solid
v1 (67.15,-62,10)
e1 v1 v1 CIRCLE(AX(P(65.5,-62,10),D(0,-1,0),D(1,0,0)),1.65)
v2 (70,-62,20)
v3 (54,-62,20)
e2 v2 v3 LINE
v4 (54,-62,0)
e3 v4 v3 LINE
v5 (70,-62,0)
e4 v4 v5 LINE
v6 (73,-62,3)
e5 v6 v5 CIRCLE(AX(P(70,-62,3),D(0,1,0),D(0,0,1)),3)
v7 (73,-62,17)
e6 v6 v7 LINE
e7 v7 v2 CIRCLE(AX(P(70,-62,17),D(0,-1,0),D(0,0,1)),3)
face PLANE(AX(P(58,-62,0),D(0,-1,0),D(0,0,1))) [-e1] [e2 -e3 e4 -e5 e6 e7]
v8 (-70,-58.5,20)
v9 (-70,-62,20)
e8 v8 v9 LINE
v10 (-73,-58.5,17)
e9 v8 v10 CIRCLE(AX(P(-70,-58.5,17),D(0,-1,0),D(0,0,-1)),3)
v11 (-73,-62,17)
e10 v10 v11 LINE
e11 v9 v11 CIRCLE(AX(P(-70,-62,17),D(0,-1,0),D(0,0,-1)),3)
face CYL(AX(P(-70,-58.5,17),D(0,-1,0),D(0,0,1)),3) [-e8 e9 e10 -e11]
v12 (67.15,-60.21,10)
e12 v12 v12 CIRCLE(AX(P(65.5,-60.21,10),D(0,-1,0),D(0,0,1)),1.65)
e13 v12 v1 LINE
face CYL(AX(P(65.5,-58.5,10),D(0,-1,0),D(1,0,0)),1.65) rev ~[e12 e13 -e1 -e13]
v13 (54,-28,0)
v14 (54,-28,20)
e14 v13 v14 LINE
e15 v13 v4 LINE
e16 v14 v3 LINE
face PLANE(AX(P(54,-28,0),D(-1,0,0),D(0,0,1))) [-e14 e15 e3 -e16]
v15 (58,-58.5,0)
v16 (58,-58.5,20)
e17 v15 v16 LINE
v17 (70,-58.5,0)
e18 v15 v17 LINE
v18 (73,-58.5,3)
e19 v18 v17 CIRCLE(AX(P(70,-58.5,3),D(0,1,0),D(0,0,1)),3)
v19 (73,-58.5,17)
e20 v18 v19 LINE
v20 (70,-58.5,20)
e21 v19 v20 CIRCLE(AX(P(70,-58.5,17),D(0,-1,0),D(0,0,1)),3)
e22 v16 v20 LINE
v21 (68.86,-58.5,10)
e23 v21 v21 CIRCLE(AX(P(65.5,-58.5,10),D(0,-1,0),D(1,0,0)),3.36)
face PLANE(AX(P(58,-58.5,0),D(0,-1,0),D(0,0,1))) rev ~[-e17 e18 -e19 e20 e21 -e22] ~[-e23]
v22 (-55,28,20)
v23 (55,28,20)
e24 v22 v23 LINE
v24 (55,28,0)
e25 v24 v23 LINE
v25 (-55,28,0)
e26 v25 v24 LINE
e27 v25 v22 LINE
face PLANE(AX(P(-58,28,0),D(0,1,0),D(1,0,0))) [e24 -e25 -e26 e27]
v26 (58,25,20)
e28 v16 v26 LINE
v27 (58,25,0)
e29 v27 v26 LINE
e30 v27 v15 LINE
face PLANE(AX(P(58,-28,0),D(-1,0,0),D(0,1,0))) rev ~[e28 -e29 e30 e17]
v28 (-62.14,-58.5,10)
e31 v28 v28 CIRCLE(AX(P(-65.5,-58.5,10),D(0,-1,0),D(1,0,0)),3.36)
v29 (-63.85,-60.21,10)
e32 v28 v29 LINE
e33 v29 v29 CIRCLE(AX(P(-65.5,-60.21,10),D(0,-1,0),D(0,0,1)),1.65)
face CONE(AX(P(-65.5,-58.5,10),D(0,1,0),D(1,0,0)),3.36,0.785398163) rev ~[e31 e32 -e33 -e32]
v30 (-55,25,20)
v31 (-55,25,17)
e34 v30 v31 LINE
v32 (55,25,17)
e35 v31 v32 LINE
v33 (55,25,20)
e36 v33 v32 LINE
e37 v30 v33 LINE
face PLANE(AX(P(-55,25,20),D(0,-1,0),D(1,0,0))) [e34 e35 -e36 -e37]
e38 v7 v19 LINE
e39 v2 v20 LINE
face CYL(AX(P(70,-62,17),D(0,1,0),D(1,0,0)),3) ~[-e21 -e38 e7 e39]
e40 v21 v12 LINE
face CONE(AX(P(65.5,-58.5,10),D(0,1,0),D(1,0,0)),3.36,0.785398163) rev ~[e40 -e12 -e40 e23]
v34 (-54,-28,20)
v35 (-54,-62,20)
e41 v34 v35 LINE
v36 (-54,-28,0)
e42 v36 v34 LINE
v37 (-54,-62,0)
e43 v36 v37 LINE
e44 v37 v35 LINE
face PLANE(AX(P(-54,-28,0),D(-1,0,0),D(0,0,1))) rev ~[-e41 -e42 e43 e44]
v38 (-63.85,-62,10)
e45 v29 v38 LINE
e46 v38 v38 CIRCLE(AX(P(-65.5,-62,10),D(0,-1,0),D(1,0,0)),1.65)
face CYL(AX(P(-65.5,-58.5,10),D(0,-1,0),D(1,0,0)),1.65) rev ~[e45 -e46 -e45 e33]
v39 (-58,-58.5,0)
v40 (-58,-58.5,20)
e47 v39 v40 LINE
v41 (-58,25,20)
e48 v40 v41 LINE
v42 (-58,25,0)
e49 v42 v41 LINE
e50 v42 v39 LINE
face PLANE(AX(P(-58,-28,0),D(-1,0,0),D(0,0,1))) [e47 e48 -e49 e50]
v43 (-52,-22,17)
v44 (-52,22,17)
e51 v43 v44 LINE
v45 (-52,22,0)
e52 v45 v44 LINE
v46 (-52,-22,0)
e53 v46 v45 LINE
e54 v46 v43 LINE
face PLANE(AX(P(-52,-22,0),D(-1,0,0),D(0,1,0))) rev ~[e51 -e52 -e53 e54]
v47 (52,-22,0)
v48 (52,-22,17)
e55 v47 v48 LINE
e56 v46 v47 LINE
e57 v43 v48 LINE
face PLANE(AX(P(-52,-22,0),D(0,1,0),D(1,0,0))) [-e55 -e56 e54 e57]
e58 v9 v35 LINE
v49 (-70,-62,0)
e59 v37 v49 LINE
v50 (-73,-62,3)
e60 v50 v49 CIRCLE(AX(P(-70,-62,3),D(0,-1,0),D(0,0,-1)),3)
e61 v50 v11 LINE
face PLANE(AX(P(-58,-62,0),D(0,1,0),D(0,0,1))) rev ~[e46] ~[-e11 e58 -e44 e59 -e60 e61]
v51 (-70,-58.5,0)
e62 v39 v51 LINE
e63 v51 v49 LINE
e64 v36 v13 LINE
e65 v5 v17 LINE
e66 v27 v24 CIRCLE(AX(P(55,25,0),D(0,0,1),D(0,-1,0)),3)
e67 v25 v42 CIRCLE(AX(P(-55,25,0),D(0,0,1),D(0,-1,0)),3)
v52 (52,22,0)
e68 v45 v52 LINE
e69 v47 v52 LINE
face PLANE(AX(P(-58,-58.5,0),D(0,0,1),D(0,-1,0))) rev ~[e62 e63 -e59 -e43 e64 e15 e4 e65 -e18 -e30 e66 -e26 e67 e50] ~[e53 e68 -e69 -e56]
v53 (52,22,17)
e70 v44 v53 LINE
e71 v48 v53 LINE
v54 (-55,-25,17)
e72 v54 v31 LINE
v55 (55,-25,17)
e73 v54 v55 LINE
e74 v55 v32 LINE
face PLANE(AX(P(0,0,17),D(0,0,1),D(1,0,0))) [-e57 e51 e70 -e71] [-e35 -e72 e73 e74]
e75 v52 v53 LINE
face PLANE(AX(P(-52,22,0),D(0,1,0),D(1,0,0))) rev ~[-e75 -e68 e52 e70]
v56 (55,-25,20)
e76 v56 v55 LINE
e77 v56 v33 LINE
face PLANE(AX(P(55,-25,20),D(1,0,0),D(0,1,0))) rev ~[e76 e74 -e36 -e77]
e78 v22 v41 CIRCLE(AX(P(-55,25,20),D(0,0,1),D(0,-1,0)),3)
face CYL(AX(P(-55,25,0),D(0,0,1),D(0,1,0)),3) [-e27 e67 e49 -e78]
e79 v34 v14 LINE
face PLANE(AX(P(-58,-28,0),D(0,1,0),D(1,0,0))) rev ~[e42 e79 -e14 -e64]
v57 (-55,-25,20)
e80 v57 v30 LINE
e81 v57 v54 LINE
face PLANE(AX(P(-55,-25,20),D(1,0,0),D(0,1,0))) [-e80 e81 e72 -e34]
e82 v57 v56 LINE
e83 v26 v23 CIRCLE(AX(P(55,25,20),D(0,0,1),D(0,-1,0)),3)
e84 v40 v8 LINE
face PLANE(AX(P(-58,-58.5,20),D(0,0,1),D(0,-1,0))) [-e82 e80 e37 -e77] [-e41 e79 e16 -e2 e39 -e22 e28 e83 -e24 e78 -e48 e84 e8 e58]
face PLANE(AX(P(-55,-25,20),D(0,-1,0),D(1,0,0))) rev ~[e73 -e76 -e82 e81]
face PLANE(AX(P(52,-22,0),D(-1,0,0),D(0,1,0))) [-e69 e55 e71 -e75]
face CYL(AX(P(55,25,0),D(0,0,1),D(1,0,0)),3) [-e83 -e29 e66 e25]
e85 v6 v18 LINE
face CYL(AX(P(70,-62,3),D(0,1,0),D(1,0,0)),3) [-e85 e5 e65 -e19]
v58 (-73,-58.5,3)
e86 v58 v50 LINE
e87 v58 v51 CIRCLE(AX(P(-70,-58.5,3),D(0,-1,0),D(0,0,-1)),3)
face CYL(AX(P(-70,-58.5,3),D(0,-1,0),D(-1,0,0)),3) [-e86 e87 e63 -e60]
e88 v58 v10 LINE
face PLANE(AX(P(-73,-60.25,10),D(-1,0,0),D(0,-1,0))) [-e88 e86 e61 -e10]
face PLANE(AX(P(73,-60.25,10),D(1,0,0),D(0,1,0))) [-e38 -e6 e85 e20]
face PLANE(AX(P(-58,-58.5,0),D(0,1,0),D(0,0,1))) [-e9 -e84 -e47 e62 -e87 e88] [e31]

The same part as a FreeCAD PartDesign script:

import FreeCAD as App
import Part
import Sketcher
from FreeCAD import Vector


def edges_at(feature, points):
    """Names of the edges that pass closest to the given points."""
    edges = feature.Shape.Edges
    near = lambda p: min(range(len(edges)), key=lambda i: edges[i].distToShape(Part.Vertex(*p))[0])
    return sorted({f"Edge{near(p) + 1}" for p in points})


def add_polygon(sketch, points):
    """Adds a closed chain of lines whose ends are joined by coincident constraints."""
    first, n = sketch.GeometryCount, len(points)
    for a, b in zip(points, points[1:] + points[:1]):
        sketch.addGeometry(Part.LineSegment(App.Vector(*a, 0), App.Vector(*b, 0)), False)
    for i in range(n):
        sketch.addConstraint(Sketcher.Constraint("Coincident", first + i, 2, first + (i + 1) % n, 1))

doc = App.newDocument("Part")
params = doc.addObject("Spreadsheet::Sheet", "Params")
for row, (alias, value) in enumerate([
    ("sketch1_width", "116 mm"),
    ("sketch1_width2", "104 mm"),
    ("sketch1_height", "56 mm"),
    ("sketch1_height2", "44 mm"),
    ("pad1_length", "20 mm"),
    ("sketch2_width", "110 mm"),
    ("sketch2_width2", "104 mm"),
    ("sketch2_height", "50 mm"),
    ("sketch2_height2", "44 mm"),
    ("pocket1_length", "3 mm"),
    ("sketch3_width", "4 mm"),
    ("sketch3_height", "20 mm"),
    ("pad2_length", "34 mm"),
    ("sketch4_height", "20 mm"),
    ("sketch4_width", "3.5 mm"),
    ("pad3_length", "15 mm"),
    ("sketch5_height", "20 mm"),
    ("sketch5_width", "3.5 mm"),
    ("pad4_length", "15 mm"),
    ("sketch6_diameter", "3.3 mm"),
    ("hole_diameter", "3.3 mm"),
    ("hole_depth", "5 mm"),
    ("hole_csink_diameter", "6.72 mm"),
    ("sketch7_diameter", "3.3 mm"),
    ("hole2_diameter", "3.3 mm"),
    ("hole2_depth", "5 mm"),
    ("hole2_csink_diameter", "6.72 mm"),
    ("fillet_radius", "3 mm"),
], start=1):
    params.set(f"A{row}", alias)
    params.set(f"B{row}", "=" + value)
    params.setAlias(f"B{row}", alias)

body = doc.addObject("PartDesign::Body", "Body")

# Sketch on XY plane
sketch1 = body.newObject("Sketcher::SketchObject", "Sketch")
sketch1.AttachmentSupport = (doc.getObject("XY_Plane"), [""])
sketch1.MapMode = "FlatFace"
add_polygon(sketch1, [(-58, 28), (-58, -28), (58, -28), (58, 28)])  # lines 0-3
add_polygon(sketch1, [(52, -22), (-52, -22), (-52, 22), (52, 22)])  # lines 4-7
sketch1.addConstraint([
    Sketcher.Constraint("Vertical", 0),
    Sketcher.Constraint("Horizontal", 1),
    Sketcher.Constraint("Vertical", 2),
    Sketcher.Constraint("Horizontal", 3),
    Sketcher.Constraint("Horizontal", 4),
    Sketcher.Constraint("Vertical", 5),
    Sketcher.Constraint("Horizontal", 6),
    Sketcher.Constraint("Vertical", 7),
    Sketcher.Constraint("Symmetric", 0, 2, 2, 2, -1, 1),
    Sketcher.Constraint("Symmetric", 4, 2, 6, 2, -1, 1),
    Sketcher.Constraint("DistanceX", 1, 1, 1, 2, 116.0),
    Sketcher.Constraint("DistanceX", 4, 2, 4, 1, 104.0),
    Sketcher.Constraint("DistanceY", 0, 2, 0, 1, 56.0),
    Sketcher.Constraint("DistanceY", 5, 1, 5, 2, 44.0),
])
sketch1.setExpression("Constraints[18]", "Params.sketch1_width")
sketch1.setExpression("Constraints[19]", "Params.sketch1_width2")
sketch1.setExpression("Constraints[20]", "Params.sketch1_height")
sketch1.setExpression("Constraints[21]", "Params.sketch1_height2")
pad1 = body.newObject("PartDesign::Pad", "Pad")
pad1.Profile = sketch1
pad1.setExpression("Length", "Params.pad1_length")

# Sketch on XY plane
sketch2 = body.newObject("Sketcher::SketchObject", "Sketch001")
sketch2.AttachmentSupport = (doc.getObject("XY_Plane"), [""])
sketch2.MapMode = "FlatFace"
sketch2.AttachmentOffset = App.Placement(Vector(0, 0, 20), App.Rotation())
add_polygon(sketch2, [(-55, 25), (-55, -25), (55, -25), (55, 25)])  # lines 0-3
add_polygon(sketch2, [(52, -22), (-52, -22), (-52, 22), (52, 22)])  # lines 4-7
sketch2.addConstraint([
    Sketcher.Constraint("Vertical", 0),
    Sketcher.Constraint("Horizontal", 1),
    Sketcher.Constraint("Vertical", 2),
    Sketcher.Constraint("Horizontal", 3),
    Sketcher.Constraint("Horizontal", 4),
    Sketcher.Constraint("Vertical", 5),
    Sketcher.Constraint("Horizontal", 6),
    Sketcher.Constraint("Vertical", 7),
    Sketcher.Constraint("Symmetric", 0, 2, 2, 2, -1, 1),
    Sketcher.Constraint("Symmetric", 4, 2, 6, 2, -1, 1),
    Sketcher.Constraint("DistanceX", 1, 1, 1, 2, 110.0),
    Sketcher.Constraint("DistanceX", 4, 2, 4, 1, 104.0),
    Sketcher.Constraint("DistanceY", 0, 2, 0, 1, 50.0),
    Sketcher.Constraint("DistanceY", 5, 1, 5, 2, 44.0),
])
sketch2.setExpression("Constraints[18]", "Params.sketch2_width")
sketch2.setExpression("Constraints[19]", "Params.sketch2_width2")
sketch2.setExpression("Constraints[20]", "Params.sketch2_height")
sketch2.setExpression("Constraints[21]", "Params.sketch2_height2")
pocket1 = body.newObject("PartDesign::Pocket", "Pocket")
pocket1.Profile = sketch2
pocket1.setExpression("Length", "Params.pocket1_length")

# Sketch on XZ plane
sketch3 = body.newObject("Sketcher::SketchObject", "Sketch002")
sketch3.AttachmentSupport = (doc.getObject("XZ_Plane"), [""])
sketch3.MapMode = "FlatFace"
sketch3.AttachmentOffset = App.Placement(Vector(0, 0, 28), App.Rotation())
add_polygon(sketch3, [(-58, 20), (-58, 0), (-54, 0), (-54, 20)])  # lines 0-3
add_polygon(sketch3, [(54, 20), (54, 0), (58, 0), (58, 20)])  # lines 4-7
sketch3.addConstraint([
    Sketcher.Constraint("Vertical", 0),
    Sketcher.Constraint("Horizontal", 1),
    Sketcher.Constraint("Vertical", 2),
    Sketcher.Constraint("Horizontal", 3),
    Sketcher.Constraint("Vertical", 4),
    Sketcher.Constraint("Horizontal", 5),
    Sketcher.Constraint("Vertical", 6),
    Sketcher.Constraint("Horizontal", 7),
    Sketcher.Constraint("Symmetric", 1, 2, 4, 2, -1, 1),
    Sketcher.Constraint("Symmetric", 0, 2, 5, 2, -2),
    Sketcher.Constraint("Horizontal", 3, 2, 6, 2),
    Sketcher.Constraint("DistanceX", 1, 1, 1, 2, 4.0),
    Sketcher.Constraint("DistanceY", 0, 2, 0, 1, 20.0),
    Sketcher.Constraint("DistanceX", 0, 2, -1, 1, 58.0),
])
sketch3.setExpression("Constraints[19]", "Params.sketch3_width")
sketch3.setExpression("Constraints[20]", "Params.sketch3_height")
pad2 = body.newObject("PartDesign::Pad", "Pad001")
pad2.Profile = sketch3
pad2.setExpression("Length", "Params.pad2_length")

# Sketch on YZ plane
sketch4 = body.newObject("Sketcher::SketchObject", "Sketch003")
sketch4.AttachmentSupport = (doc.getObject("YZ_Plane"), [""])
sketch4.MapMode = "FlatFace"
sketch4.AttachmentOffset = App.Placement(Vector(0, 0, 58), App.Rotation())
add_polygon(sketch4, [(-62, 20), (-62, 0), (-58.5, 0), (-58.5, 20)])  # lines 0-3
sketch4.addConstraint([
    Sketcher.Constraint("Vertical", 0),
    Sketcher.Constraint("Horizontal", 1),
    Sketcher.Constraint("Vertical", 2),
    Sketcher.Constraint("Horizontal", 3),
    Sketcher.Constraint("PointOnObject", 0, 2, -1),
    Sketcher.Constraint("DistanceY", 0, 2, 0, 1, 20.0),
    Sketcher.Constraint("DistanceX", 1, 1, 1, 2, 3.5),
    Sketcher.Constraint("DistanceX", 0, 2, -1, 1, 62.0),
])
sketch4.setExpression("Constraints[9]", "Params.sketch4_height")
sketch4.setExpression("Constraints[10]", "Params.sketch4_width")
pad3 = body.newObject("PartDesign::Pad", "Pad002")
pad3.Profile = sketch4
pad3.setExpression("Length", "Params.pad3_length")

# Sketch on YZ plane
sketch5 = body.newObject("Sketcher::SketchObject", "Sketch004")
sketch5.AttachmentSupport = (doc.getObject("YZ_Plane"), [""])
sketch5.MapMode = "FlatFace"
sketch5.AttachmentOffset = App.Placement(Vector(0, 0, -58), App.Rotation())
add_polygon(sketch5, [(-58.5, 20), (-58.5, 0), (-62, 0), (-62, 20)])  # lines 0-3
sketch5.addConstraint([
    Sketcher.Constraint("Vertical", 0),
    Sketcher.Constraint("Horizontal", 1),
    Sketcher.Constraint("Vertical", 2),
    Sketcher.Constraint("Horizontal", 3),
    Sketcher.Constraint("PointOnObject", 0, 2, -1),
    Sketcher.Constraint("DistanceY", 0, 2, 0, 1, 20.0),
    Sketcher.Constraint("DistanceX", 1, 2, 1, 1, 3.5),
    Sketcher.Constraint("DistanceX", 1, 2, -1, 1, 62.0),
])
sketch5.setExpression("Constraints[9]", "Params.sketch5_height")
sketch5.setExpression("Constraints[10]", "Params.sketch5_width")
pad4 = body.newObject("PartDesign::Pad", "Pad003")
pad4.Profile = sketch5
pad4.setExpression("Length", "Params.pad4_length")
pad4.Reversed = True

# Sketch on XZ plane
sketch6 = body.newObject("Sketcher::SketchObject", "Sketch005")
sketch6.AttachmentSupport = (doc.getObject("XZ_Plane"), [""])
sketch6.MapMode = "FlatFace"
sketch6.AttachmentOffset = App.Placement(Vector(0, 0, 58.5), App.Rotation())
sketch6.addGeometry(Part.Circle(Vector(65.5, 10, 0), Vector(0, 0, 1), 1.65), False)
sketch6.addConstraint([
    Sketcher.Constraint("Diameter", 0, 3.3),
    Sketcher.Constraint("DistanceY", -1, 1, 0, 3, 10.0),
    Sketcher.Constraint("DistanceX", -1, 1, 0, 3, 65.5),
])
sketch6.setExpression("Constraints[0]", "Params.sketch6_diameter")
doc.recompute()
hole = body.newObject("PartDesign::Hole", "Hole")
hole.Profile = sketch6
hole.ThreadType = "None"
hole.setExpression("Diameter", "Params.hole_diameter")
hole.DepthType = "Dimension"
hole.setExpression("Depth", "Params.hole_depth")
hole.DrillPoint = "Angled"
hole.DrillPointAngle = 118
hole.HoleCutType = "Countersink"
hole.setExpression("HoleCutDiameter", "Params.hole_csink_diameter")
hole.HoleCutCountersinkAngle = 90
hole.Reversed = True

# Sketch on XZ plane
sketch7 = body.newObject("Sketcher::SketchObject", "Sketch006")
sketch7.AttachmentSupport = (doc.getObject("XZ_Plane"), [""])
sketch7.MapMode = "FlatFace"
sketch7.AttachmentOffset = App.Placement(Vector(0, 0, 58.5), App.Rotation())
sketch7.addGeometry(Part.Circle(Vector(-65.5, 10, 0), Vector(0, 0, 1), 1.65), False)
sketch7.addConstraint([
    Sketcher.Constraint("Diameter", 0, 3.3),
    Sketcher.Constraint("DistanceY", -1, 1, 0, 3, 10.0),
    Sketcher.Constraint("DistanceX", 0, 3, -1, 1, 65.5),
])
sketch7.setExpression("Constraints[0]", "Params.sketch7_diameter")
doc.recompute()
hole2 = body.newObject("PartDesign::Hole", "Hole001")
hole2.Profile = sketch7
hole2.ThreadType = "None"
hole2.setExpression("Diameter", "Params.hole2_diameter")
hole2.DepthType = "Dimension"
hole2.setExpression("Depth", "Params.hole2_depth")
hole2.DrillPoint = "Angled"
hole2.DrillPointAngle = 118
hole2.HoleCutType = "Countersink"
hole2.setExpression("HoleCutDiameter", "Params.hole2_csink_diameter")
hole2.HoleCutCountersinkAngle = 90
hole2.Reversed = True
doc.recompute()

fillet = body.newObject("PartDesign::Fillet", "Fillet")
fillet.Base = (hole2, edges_at(hole2, [
    (58, 28, 10),
    (-58, 28, 10),
    (73, -60.25, 0),
    (73, -60.25, 20),
    (-73, -60.25, 20),
    (-73, -60.25, 0),
]))
fillet.setExpression("Radius", "Params.fillet_radius")

doc.recompute()
